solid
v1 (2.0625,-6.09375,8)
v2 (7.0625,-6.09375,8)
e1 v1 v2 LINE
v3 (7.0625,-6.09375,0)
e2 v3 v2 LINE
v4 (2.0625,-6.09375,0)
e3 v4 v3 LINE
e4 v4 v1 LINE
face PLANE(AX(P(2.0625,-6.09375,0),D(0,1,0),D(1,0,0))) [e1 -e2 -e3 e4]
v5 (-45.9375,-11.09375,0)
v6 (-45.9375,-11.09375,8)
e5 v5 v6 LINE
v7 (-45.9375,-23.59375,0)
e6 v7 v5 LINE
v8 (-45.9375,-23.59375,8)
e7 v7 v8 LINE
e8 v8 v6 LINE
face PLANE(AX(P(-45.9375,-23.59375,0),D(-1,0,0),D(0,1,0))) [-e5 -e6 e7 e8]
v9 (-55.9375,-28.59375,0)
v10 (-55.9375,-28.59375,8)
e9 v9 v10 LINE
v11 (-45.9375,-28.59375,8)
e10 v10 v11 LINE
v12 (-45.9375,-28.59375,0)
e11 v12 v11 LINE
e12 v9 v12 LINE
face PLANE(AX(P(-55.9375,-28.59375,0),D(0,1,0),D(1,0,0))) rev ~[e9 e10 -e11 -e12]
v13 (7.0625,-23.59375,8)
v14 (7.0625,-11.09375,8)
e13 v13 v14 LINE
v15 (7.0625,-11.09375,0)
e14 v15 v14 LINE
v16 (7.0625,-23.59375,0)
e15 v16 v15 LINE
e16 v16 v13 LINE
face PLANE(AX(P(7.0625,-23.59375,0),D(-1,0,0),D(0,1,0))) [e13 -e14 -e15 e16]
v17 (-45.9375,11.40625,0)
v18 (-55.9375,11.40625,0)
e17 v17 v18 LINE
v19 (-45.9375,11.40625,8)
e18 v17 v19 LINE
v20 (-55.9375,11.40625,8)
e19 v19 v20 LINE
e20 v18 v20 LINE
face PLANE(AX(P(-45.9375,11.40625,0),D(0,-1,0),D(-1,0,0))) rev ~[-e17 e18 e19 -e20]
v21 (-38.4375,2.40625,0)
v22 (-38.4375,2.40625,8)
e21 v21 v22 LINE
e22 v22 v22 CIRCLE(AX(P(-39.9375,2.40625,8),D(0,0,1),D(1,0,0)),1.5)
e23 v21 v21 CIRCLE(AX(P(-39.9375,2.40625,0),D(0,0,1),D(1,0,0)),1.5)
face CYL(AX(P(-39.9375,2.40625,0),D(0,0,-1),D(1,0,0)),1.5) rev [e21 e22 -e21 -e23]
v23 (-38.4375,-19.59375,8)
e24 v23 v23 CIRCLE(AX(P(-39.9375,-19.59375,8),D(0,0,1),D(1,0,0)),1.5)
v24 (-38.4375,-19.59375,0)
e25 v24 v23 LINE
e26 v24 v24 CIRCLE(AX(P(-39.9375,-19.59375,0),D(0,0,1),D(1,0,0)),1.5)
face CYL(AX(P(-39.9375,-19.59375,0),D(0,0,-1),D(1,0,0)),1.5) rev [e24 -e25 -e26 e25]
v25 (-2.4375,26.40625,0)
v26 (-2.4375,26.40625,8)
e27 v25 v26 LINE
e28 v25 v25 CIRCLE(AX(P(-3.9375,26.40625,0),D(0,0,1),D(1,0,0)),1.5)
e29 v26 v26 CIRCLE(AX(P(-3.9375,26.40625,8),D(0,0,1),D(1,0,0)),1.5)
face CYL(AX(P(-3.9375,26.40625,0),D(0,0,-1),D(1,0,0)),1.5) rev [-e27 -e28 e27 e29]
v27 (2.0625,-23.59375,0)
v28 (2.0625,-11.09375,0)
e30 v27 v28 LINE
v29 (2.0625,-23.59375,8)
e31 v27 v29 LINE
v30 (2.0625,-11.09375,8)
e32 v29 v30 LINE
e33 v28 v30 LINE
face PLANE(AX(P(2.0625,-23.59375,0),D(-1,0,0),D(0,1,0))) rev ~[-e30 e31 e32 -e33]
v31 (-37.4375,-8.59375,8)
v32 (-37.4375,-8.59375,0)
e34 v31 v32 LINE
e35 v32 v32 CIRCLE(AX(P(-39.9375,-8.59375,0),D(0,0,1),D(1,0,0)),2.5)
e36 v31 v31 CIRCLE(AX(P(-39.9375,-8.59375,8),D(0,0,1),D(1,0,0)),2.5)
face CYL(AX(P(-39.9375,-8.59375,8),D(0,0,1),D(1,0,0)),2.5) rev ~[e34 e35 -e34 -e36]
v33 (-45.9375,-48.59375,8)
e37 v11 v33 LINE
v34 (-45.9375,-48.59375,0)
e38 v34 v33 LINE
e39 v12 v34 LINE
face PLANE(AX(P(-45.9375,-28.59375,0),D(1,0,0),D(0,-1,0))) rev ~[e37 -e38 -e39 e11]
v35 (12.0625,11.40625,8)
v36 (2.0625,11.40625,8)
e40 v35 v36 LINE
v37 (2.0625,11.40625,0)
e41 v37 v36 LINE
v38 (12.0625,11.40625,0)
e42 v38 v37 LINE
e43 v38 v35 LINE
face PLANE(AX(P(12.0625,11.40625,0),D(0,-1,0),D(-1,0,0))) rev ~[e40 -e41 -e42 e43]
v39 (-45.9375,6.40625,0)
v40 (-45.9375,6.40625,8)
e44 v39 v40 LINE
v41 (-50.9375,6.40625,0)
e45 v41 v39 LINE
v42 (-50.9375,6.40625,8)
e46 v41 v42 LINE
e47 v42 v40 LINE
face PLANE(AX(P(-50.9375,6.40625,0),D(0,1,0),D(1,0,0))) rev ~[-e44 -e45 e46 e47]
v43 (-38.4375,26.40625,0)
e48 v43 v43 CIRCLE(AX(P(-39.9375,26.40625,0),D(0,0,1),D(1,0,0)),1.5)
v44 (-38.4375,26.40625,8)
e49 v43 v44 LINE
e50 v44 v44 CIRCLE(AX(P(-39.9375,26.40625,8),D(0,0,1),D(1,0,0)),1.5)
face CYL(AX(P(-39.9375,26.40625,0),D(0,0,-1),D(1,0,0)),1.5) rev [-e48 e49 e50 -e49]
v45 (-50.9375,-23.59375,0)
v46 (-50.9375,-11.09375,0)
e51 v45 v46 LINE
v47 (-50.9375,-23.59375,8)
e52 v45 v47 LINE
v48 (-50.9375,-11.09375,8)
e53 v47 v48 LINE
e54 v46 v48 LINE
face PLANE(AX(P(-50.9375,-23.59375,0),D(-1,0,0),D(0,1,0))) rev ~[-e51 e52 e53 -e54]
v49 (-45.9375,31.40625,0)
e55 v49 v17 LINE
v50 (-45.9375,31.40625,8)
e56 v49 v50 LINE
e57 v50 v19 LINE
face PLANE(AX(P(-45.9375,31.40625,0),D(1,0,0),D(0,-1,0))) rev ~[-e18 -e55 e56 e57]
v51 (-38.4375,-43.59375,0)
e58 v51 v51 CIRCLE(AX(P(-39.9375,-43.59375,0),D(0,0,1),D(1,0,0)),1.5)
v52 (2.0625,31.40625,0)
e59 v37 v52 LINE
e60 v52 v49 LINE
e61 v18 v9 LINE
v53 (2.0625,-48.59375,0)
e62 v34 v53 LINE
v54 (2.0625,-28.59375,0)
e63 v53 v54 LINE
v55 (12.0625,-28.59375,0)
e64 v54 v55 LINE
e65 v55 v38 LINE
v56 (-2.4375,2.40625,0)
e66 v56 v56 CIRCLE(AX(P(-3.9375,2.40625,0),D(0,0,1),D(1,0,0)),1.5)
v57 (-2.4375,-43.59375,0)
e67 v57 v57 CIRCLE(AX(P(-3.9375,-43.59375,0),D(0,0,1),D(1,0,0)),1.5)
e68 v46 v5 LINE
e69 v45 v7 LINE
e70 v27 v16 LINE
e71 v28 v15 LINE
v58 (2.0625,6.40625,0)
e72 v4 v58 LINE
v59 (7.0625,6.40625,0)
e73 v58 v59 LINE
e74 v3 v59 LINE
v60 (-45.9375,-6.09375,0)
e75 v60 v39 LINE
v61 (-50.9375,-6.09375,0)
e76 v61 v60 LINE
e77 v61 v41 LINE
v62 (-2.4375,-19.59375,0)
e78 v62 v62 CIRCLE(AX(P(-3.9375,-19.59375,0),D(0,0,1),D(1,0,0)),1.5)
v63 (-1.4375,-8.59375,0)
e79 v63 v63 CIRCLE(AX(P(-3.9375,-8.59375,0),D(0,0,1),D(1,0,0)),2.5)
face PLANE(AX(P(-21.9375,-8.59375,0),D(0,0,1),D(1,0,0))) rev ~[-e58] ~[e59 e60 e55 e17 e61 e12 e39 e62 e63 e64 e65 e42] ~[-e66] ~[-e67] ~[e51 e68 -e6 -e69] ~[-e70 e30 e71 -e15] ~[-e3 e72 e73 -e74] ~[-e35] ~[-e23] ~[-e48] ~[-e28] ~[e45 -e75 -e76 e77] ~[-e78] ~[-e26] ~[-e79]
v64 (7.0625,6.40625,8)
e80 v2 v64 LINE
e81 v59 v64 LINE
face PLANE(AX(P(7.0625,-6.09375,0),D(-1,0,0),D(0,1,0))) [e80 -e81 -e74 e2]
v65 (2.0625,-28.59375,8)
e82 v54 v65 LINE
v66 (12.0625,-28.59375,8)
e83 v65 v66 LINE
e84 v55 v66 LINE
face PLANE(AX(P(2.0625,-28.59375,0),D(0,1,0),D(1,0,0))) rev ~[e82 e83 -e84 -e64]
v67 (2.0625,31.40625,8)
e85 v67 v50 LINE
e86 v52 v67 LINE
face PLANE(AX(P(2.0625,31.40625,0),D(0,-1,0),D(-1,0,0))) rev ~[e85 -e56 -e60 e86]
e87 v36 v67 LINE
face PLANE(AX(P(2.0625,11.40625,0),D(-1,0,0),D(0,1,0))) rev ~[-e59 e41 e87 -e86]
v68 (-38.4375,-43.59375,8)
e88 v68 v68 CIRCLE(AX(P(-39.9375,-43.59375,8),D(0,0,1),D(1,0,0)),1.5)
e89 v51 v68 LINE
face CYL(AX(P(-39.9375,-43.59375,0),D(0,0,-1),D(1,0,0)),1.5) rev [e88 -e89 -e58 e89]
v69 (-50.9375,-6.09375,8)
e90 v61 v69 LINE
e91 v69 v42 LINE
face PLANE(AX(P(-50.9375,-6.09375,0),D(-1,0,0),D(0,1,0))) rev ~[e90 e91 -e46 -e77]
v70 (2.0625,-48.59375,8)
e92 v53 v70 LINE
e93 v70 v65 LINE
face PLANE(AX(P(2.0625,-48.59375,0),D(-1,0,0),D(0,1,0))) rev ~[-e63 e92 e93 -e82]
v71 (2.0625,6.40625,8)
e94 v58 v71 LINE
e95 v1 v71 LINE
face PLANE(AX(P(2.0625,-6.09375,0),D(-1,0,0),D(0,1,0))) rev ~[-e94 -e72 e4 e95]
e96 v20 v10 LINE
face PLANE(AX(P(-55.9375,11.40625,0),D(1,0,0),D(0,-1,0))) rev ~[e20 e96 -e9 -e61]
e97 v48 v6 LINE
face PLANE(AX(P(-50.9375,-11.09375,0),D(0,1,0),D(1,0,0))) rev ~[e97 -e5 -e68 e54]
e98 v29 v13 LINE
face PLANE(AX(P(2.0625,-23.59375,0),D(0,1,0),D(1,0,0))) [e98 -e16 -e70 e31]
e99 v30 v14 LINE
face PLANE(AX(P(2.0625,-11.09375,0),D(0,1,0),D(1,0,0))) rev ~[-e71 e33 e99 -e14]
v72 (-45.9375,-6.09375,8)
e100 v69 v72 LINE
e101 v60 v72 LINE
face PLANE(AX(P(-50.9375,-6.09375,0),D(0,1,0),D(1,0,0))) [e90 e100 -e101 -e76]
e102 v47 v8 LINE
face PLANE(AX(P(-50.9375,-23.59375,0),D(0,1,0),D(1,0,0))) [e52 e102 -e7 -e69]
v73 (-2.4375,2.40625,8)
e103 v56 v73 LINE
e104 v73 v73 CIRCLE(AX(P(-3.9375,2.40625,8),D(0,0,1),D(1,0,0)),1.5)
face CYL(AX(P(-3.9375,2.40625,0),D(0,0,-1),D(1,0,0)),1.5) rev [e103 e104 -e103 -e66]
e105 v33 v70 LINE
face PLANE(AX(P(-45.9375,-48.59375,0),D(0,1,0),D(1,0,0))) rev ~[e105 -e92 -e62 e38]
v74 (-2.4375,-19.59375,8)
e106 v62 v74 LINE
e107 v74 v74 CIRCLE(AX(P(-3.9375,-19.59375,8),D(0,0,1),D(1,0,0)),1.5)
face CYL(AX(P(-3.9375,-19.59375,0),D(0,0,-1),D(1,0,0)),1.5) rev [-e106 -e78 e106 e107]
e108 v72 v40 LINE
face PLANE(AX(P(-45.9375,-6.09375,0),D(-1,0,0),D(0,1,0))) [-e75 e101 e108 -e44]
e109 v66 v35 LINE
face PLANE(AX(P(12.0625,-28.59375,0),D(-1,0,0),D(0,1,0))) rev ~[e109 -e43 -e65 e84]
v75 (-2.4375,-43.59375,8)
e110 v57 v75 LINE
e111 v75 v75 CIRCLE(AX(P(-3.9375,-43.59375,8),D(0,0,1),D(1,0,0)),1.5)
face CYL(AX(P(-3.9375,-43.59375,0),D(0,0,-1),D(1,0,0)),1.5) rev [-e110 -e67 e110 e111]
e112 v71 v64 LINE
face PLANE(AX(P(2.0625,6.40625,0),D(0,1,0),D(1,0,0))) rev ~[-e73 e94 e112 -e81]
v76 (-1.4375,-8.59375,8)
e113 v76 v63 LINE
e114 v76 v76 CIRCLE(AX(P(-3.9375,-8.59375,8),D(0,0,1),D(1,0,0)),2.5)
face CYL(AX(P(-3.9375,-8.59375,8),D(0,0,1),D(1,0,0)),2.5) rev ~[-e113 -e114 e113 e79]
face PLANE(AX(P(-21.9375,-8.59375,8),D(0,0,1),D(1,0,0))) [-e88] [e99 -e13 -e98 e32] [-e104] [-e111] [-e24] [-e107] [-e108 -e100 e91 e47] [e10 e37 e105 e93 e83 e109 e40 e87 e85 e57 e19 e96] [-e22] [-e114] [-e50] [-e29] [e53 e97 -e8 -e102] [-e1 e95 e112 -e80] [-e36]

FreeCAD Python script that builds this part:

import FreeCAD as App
import Part
import Sketcher
from FreeCAD import Vector


def add_polygon(sketch, points):
    """Adds a closed chain of lines whose ends are joined by coincident constraints."""
    first, n = sketch.GeometryCount, len(points)
    for a, b in zip(points, points[1:] + points[:1]):
        sketch.addGeometry(Part.LineSegment(App.Vector(*a, 0), App.Vector(*b, 0)), False)
    for i in range(n):
        sketch.addConstraint(Sketcher.Constraint("Coincident", first + i, 2, first + (i + 1) % n, 1))

doc = App.newDocument("Part")
body = doc.addObject("PartDesign::Body", "Body")

# Sketch on XY plane
sketch1 = body.newObject("Sketcher::SketchObject", "Sketch")
sketch1.AttachmentSupport = (doc.getObject("XY_Plane"), [""])
sketch1.MapMode = "FlatFace"
add_polygon(sketch1, [(2.1, 31.4), (-45.9, 31.4), (-45.9, 11.4), (-55.9, 11.4), (-55.9, -28.6), (-45.9, -28.6), (-45.9, -48.6), (2.1, -48.6), (2.1, -28.6), (12.1, -28.6), (12.1, 11.4), (2.1, 11.4)])  # lines 0-11
sketch1.addGeometry(Part.Circle(Vector(-39.9, -43.6, 0), Vector(0, 0, 1), 1.5), False)  # 12
sketch1.addGeometry(Part.Circle(Vector(-39.9, -19.6, 0), Vector(0, 0, 1), 1.5), False)  # 13
add_polygon(sketch1, [(-45.9, -23.6), (-50.9, -23.6), (-50.9, -11.1), (-45.9, -11.1)])  # lines 14-17
sketch1.addGeometry(Part.Circle(Vector(-3.9, -43.6, 0), Vector(0, 0, 1), 1.5), False)  # 18
sketch1.addGeometry(Part.Circle(Vector(-3.9, -19.6, 0), Vector(0, 0, 1), 1.5), False)  # 19
add_polygon(sketch1, [(7.1, -23.6), (2.1, -23.6), (2.1, -11.1), (7.1, -11.1)])  # lines 20-23
add_polygon(sketch1, [(-45.9, -6.1), (-50.9, -6.1), (-50.9, 6.4), (-45.9, 6.4)])  # lines 24-27
sketch1.addGeometry(Part.Circle(Vector(-39.9, 2.4, 0), Vector(0, 0, 1), 1.5), False)  # 28
sketch1.addGeometry(Part.Circle(Vector(-39.9, 26.4, 0), Vector(0, 0, 1), 1.5), False)  # 29
add_polygon(sketch1, [(7.1, -6.1), (2.1, -6.1), (2.1, 6.4), (7.1, 6.4)])  # lines 30-33
sketch1.addGeometry(Part.Circle(Vector(-3.9, 2.4, 0), Vector(0, 0, 1), 1.5), False)  # 34
sketch1.addGeometry(Part.Circle(Vector(-3.9, 26.4, 0), Vector(0, 0, 1), 1.5), False)  # 35
sketch1.addConstraint(Sketcher.Constraint("Horizontal", 0))
sketch1.addConstraint(Sketcher.Constraint("Vertical", 1))
sketch1.addConstraint(Sketcher.Constraint("Horizontal", 2))
sketch1.addConstraint(Sketcher.Constraint("Vertical", 3))
sketch1.addConstraint(Sketcher.Constraint("Horizontal", 4))
sketch1.addConstraint(Sketcher.Constraint("Vertical", 5))
sketch1.addConstraint(Sketcher.Constraint("Horizontal", 6))
sketch1.addConstraint(Sketcher.Constraint("Vertical", 7))
sketch1.addConstraint(Sketcher.Constraint("Horizontal", 8))
sketch1.addConstraint(Sketcher.Constraint("Vertical", 9))
sketch1.addConstraint(Sketcher.Constraint("Horizontal", 10))
sketch1.addConstraint(Sketcher.Constraint("Vertical", 11))
sketch1.addConstraint(Sketcher.Constraint("Horizontal", 14))
sketch1.addConstraint(Sketcher.Constraint("Vertical", 15))
sketch1.addConstraint(Sketcher.Constraint("Horizontal", 16))
sketch1.addConstraint(Sketcher.Constraint("Vertical", 17))
sketch1.addConstraint(Sketcher.Constraint("Horizontal", 20))
sketch1.addConstraint(Sketcher.Constraint("Vertical", 21))
sketch1.addConstraint(Sketcher.Constraint("Horizontal", 22))
sketch1.addConstraint(Sketcher.Constraint("Vertical", 23))
sketch1.addConstraint(Sketcher.Constraint("Horizontal", 24))
sketch1.addConstraint(Sketcher.Constraint("Vertical", 25))
sketch1.addConstraint(Sketcher.Constraint("Horizontal", 26))
sketch1.addConstraint(Sketcher.Constraint("Vertical", 27))
sketch1.addConstraint(Sketcher.Constraint("Horizontal", 30))
sketch1.addConstraint(Sketcher.Constraint("Vertical", 31))
sketch1.addConstraint(Sketcher.Constraint("Horizontal", 32))
sketch1.addConstraint(Sketcher.Constraint("Vertical", 33))
sketch1.addConstraint(Sketcher.Constraint("Equal", 12, 13))
sketch1.addConstraint(Sketcher.Constraint("Equal", 13, 18))
sketch1.addConstraint(Sketcher.Constraint("Equal", 18, 19))
sketch1.addConstraint(Sketcher.Constraint("Equal", 19, 28))
sketch1.addConstraint(Sketcher.Constraint("Equal", 28, 29))
sketch1.addConstraint(Sketcher.Constraint("Equal", 29, 34))
sketch1.addConstraint(Sketcher.Constraint("Equal", 34, 35))
sketch1.addConstraint(Sketcher.Constraint("Horizontal", 12, 3, 18, 3))
sketch1.addConstraint(Sketcher.Constraint("Horizontal", 13, 3, 19, 3))
sketch1.addConstraint(Sketcher.Constraint("Horizontal", 28, 3, 34, 3))
sketch1.addConstraint(Sketcher.Constraint("Horizontal", 29, 3, 35, 3))
sketch1.addConstraint(Sketcher.Constraint("Horizontal", 4, 2, 7, 2))
sketch1.addConstraint(Sketcher.Constraint("Horizontal", 2, 2, 9, 2))
sketch1.addConstraint(Sketcher.Constraint("Horizontal", 17, 2, 20, 2))
sketch1.addConstraint(Sketcher.Constraint("Horizontal", 16, 2, 21, 2))
sketch1.addConstraint(Sketcher.Constraint("Horizontal", 27, 2, 30, 2))
sketch1.addConstraint(Sketcher.Constraint("Horizontal", 26, 2, 31, 2))
sketch1.addConstraint(Sketcher.Constraint("Vertical", 12, 3, 13, 3))
sketch1.addConstraint(Sketcher.Constraint("Vertical", 18, 3, 19, 3))
sketch1.addConstraint(Sketcher.Constraint("Vertical", 13, 3, 28, 3))
sketch1.addConstraint(Sketcher.Constraint("Vertical", 28, 3, 29, 3))
sketch1.addConstraint(Sketcher.Constraint("Vertical", 19, 3, 34, 3))
sketch1.addConstraint(Sketcher.Constraint("Vertical", 34, 3, 35, 3))
sketch1.addConstraint(Sketcher.Constraint("Vertical", 1, 2, 4, 2))
sketch1.addConstraint(Sketcher.Constraint("Vertical", 7, 2, 10, 2))
sketch1.addConstraint(Sketcher.Constraint("Vertical", 5, 2, 16, 2))
sketch1.addConstraint(Sketcher.Constraint("Vertical", 11, 2, 20, 2))
sketch1.addConstraint(Sketcher.Constraint("Vertical", 15, 2, 24, 2))
sketch1.addConstraint(Sketcher.Constraint("Vertical", 17, 2, 26, 2))
sketch1.addConstraint(Sketcher.Constraint("Vertical", 21, 2, 30, 2))
sketch1.addConstraint(Sketcher.Constraint("Vertical", 23, 2, 32, 2))
sketch1.addConstraint(Sketcher.Constraint("Equal", 4, 8))
sketch1.addConstraint(Sketcher.Constraint("Equal", 16, 20))
sketch1.addConstraint(Sketcher.Constraint("Equal", 1, 5))
sketch1.addConstraint(Sketcher.Constraint("Equal", 23, 25))
sketch1.addConstraint(Sketcher.Constraint("Diameter", 12, 3.0))
sketch1.addConstraint(Sketcher.Constraint("DistanceX", 0, 2, 0, 1, 48.0))
sketch1.addConstraint(Sketcher.Constraint("DistanceX", 2, 2, 2, 1, 10.0))
sketch1.addConstraint(Sketcher.Constraint("DistanceX", 14, 2, 14, 1, 5.0))
sketch1.addConstraint(Sketcher.Constraint("DistanceY", 1, 2, 1, 1, 20.0))
sketch1.addConstraint(Sketcher.Constraint("DistanceY", 3, 2, 3, 1, 40.0))
sketch1.addConstraint(Sketcher.Constraint("DistanceY", 15, 1, 15, 2, 12.5))
sketch1.addConstraint(Sketcher.Constraint("DistanceY", 12, 3, 13, 3, 24.0))
sketch1.addConstraint(Sketcher.Constraint("DistanceX", 12, 3, 18, 3, 36.0))
sketch1.addConstraint(Sketcher.Constraint("DistanceY", 13, 3, 28, 3, 22.0))
sketch1.addConstraint(Sketcher.Constraint("DistanceY", 28, 3, 29, 3, 24.0))
sketch1.addConstraint(Sketcher.Constraint("DistanceX", 0, 2, 29, 3, 6.0))
sketch1.addConstraint(Sketcher.Constraint("DistanceY", 29, 3, 0, 2, 5.0))
sketch1.addConstraint(Sketcher.Constraint("DistanceY", 3, 2, 14, 2, 5.0))
sketch1.addConstraint(Sketcher.Constraint("DistanceY", 15, 2, 24, 2, 5.0))
sketch1.addConstraint(Sketcher.Constraint("DistanceX", 12, 3, -1, 1, 39.9375))
sketch1.addConstraint(Sketcher.Constraint("DistanceY", 12, 3, -1, 1, 43.59375))
pad1 = body.newObject("PartDesign::Pad", "Pad")
pad1.Profile = sketch1
pad1.Length = 8

# Sketch on XY plane
sketch2 = body.newObject("Sketcher::SketchObject", "Sketch001")
sketch2.AttachmentSupport = (doc.getObject("XY_Plane"), [""])
sketch2.MapMode = "FlatFace"
sketch2.AttachmentOffset = App.Placement(Vector(0, 0, 8), App.Rotation())
sketch2.addGeometry(Part.Circle(Vector(-39.9, -8.6, 0), Vector(0, 0, 1), 2.5), False)
sketch2.addGeometry(Part.Circle(Vector(-3.9, -8.6, 0), Vector(0, 0, 1), 2.5), False)
sketch2.addConstraint(Sketcher.Constraint("Equal", 0, 1))
sketch2.addConstraint(Sketcher.Constraint("Horizontal", 0, 3, 1, 3))
sketch2.addConstraint(Sketcher.Constraint("Diameter", 0, 5.0))
sketch2.addConstraint(Sketcher.Constraint("DistanceX", 0, 3, 1, 3, 36.0))
sketch2.addConstraint(Sketcher.Constraint("DistanceX", 0, 3, -1, 1, 39.9375))
sketch2.addConstraint(Sketcher.Constraint("DistanceY", 0, 3, -1, 1, 8.59375))
pocket1 = body.newObject("PartDesign::Pocket", "Pocket")
pocket1.Profile = sketch2
pocket1.Length = 10

doc.recompute()
